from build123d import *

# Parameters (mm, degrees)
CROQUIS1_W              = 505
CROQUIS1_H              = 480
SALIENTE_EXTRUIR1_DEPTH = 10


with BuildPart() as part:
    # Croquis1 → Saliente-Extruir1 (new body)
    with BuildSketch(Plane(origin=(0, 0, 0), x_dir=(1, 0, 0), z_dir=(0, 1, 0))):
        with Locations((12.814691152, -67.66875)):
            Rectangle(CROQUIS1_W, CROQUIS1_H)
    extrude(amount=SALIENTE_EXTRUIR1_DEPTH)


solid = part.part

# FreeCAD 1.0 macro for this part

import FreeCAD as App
import Part
import Sketcher

V = App.Vector
Q = App.Units.Quantity

doc = App.newDocument("Part")
params = doc.addObject("Spreadsheet::Sheet", "Params")
for row, (alias, value) in enumerate([
    ("sketch1_width", "505 mm"),
    ("sketch1_height", "480 mm"),
    ("pad1_length", "10 mm"),
], start=1):
    params.set(f"A{row}", alias)
    params.set(f"B{row}", "=" + value)
    params.setAlias(f"B{row}", alias)

body = doc.addObject("PartDesign::Body", "Body")

# Sketch on XZ plane
sketch1 = body.newObject("Sketcher::SketchObject", "Sketch")
sketch1.AttachmentSupport = (doc.getObject("XZ_Plane"), [""])
sketch1.MapMode = "FlatFace"
sketch1.addGeometry(Part.LineSegment(V(-240, -172, 0), V(-240, 308, 0)), False)
sketch1.addGeometry(Part.LineSegment(V(-240, 308, 0), V(265, 308, 0)), False)
sketch1.addGeometry(Part.LineSegment(V(265, 308, 0), V(265, -172, 0)), False)
sketch1.addGeometry(Part.LineSegment(V(265, -172, 0), V(-240, -172, 0)), False)
sketch1.addConstraint(Sketcher.Constraint("Coincident", 0, 2, 1, 1))
sketch1.addConstraint(Sketcher.Constraint("Coincident", 1, 2, 2, 1))
sketch1.addConstraint(Sketcher.Constraint("Coincident", 2, 2, 3, 1))
sketch1.addConstraint(Sketcher.Constraint("Coincident", 3, 2, 0, 1))
sketch1.addConstraint(Sketcher.Constraint("Vertical", 0))
sketch1.addConstraint(Sketcher.Constraint("Horizontal", 1))
sketch1.addConstraint(Sketcher.Constraint("Vertical", 2))
sketch1.addConstraint(Sketcher.Constraint("Horizontal", 3))
sketch1.addConstraint(Sketcher.Constraint("DistanceX", 1, 1, 1, 2, Q("505 mm")))
sketch1.addConstraint(Sketcher.Constraint("DistanceY", 0, 1, 0, 2, Q("480 mm")))
sketch1.addConstraint(Sketcher.Constraint("DistanceX", 0, 2, -1, 1, Q("239.685309 mm")))
sketch1.addConstraint(Sketcher.Constraint("DistanceY", -1, 1, 0, 2, Q("307.66875 mm")))
sketch1.setExpression("Constraints[8]", "Params.sketch1_width")
sketch1.setExpression("Constraints[9]", "Params.sketch1_height")
pad1 = body.newObject("PartDesign::Pad", "Pad")
pad1.Profile = sketch1
pad1.setExpression("Length", "Params.pad1_length")
pad1.Reversed = True

doc.recompute()
